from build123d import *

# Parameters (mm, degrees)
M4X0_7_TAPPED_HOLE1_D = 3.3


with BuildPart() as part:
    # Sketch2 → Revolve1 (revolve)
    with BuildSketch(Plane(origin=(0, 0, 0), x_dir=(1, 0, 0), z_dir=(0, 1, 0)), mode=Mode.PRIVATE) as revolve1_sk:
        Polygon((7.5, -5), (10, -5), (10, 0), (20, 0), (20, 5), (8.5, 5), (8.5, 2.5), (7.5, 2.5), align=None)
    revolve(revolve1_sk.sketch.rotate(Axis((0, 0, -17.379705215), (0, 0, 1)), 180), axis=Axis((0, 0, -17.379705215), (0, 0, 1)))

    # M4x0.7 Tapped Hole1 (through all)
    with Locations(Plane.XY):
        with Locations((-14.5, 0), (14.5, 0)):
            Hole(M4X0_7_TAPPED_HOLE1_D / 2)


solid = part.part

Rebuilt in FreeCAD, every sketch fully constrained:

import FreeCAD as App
import Part
import Sketcher
Q = App.Units.Quantity


def add_polygon(sketch, points):
    """Adds a closed chain of lines whose ends are joined by coincident constraints."""
    first, n = sketch.GeometryCount, len(points)
    for a, b in zip(points, points[1:] + points[:1]):
        sketch.addGeometry(Part.LineSegment(App.Vector(*a, 0), App.Vector(*b, 0)), False)
    for i in range(n):
        sketch.addConstraint(Sketcher.Constraint("Coincident", first + i, 2, first + (i + 1) % n, 1))

doc = App.newDocument("Part")
body = doc.addObject("PartDesign::Body", "Body")

# Sketch on XZ plane
sketch1 = body.newObject("Sketcher::SketchObject", "Sketch")
sketch1.AttachmentSupport = (doc.getObject("XZ_Plane"), [""])
sketch1.MapMode = "FlatFace"
add_polygon(sketch1, [(7.5, 5), (10, 5), (10, 0), (20, 0), (20, -5), (8.5, -5), (8.5, -2.5), (7.5, -2.5)])  # lines 0-7
sketch1.addConstraint([
    Sketcher.Constraint("Horizontal", 0),
    Sketcher.Constraint("Vertical", 1),
    Sketcher.Constraint("Horizontal", 2),
    Sketcher.Constraint("Vertical", 3),
    Sketcher.Constraint("Horizontal", 4),
    Sketcher.Constraint("Vertical", 5),
    Sketcher.Constraint("Horizontal", 6),
    Sketcher.Constraint("Vertical", 7),
    Sketcher.Constraint("PointOnObject", 1, 2, -1),
    Sketcher.Constraint("Equal", 1, 3),
    Sketcher.Constraint("Equal", 0, 5),
    Sketcher.Constraint("DistanceX", 2, 1, 2, 2, Q("10 mm")),
    Sketcher.Constraint("DistanceX", 6, 2, 6, 1, Q("1 mm")),
    Sketcher.Constraint("DistanceY", 1, 2, 1, 1, Q("5 mm")),
    Sketcher.Constraint("DistanceX", 0, 1, 0, 2, Q("2.5 mm")),
    Sketcher.Constraint("DistanceX", -1, 1, 0, 2, Q("10 mm")),
])
revolution = body.newObject("PartDesign::Revolution", "Revolution")
revolution.Profile = sketch1
revolution.ReferenceAxis = (sketch1, ["V_Axis"])
revolution.Angle = 360

# Sketch on XY plane
sketch2 = body.newObject("Sketcher::SketchObject", "Sketch001")
sketch2.AttachmentSupport = (doc.getObject("XY_Plane"), [""])
sketch2.MapMode = "FlatFace"
sketch2.addGeometry([
    Part.Circle(App.Vector(-14.5, 0, 0), App.Vector(0, 0, 1), 1.6),
    Part.Circle(App.Vector(14.5, 0, 0), App.Vector(0, 0, 1), 1.6),
], False)
sketch2.addConstraint([
    Sketcher.Constraint("Equal", 0, 1),
    Sketcher.Constraint("Symmetric", 0, 3, 1, 3, -1, 1),
    Sketcher.Constraint("PointOnObject", 0, 3, -1),
    Sketcher.Constraint("Diameter", 0, Q("3.3 mm")),
    Sketcher.Constraint("DistanceX", 0, 3, 1, 3, Q("29 mm")),
])
doc.recompute()
hole = body.newObject("PartDesign::Hole", "Hole")
hole.Profile = sketch2
hole.ThreadType = "None"
hole.Diameter = 3.3
hole.DepthType = "ThroughAll"

doc.recompute()
